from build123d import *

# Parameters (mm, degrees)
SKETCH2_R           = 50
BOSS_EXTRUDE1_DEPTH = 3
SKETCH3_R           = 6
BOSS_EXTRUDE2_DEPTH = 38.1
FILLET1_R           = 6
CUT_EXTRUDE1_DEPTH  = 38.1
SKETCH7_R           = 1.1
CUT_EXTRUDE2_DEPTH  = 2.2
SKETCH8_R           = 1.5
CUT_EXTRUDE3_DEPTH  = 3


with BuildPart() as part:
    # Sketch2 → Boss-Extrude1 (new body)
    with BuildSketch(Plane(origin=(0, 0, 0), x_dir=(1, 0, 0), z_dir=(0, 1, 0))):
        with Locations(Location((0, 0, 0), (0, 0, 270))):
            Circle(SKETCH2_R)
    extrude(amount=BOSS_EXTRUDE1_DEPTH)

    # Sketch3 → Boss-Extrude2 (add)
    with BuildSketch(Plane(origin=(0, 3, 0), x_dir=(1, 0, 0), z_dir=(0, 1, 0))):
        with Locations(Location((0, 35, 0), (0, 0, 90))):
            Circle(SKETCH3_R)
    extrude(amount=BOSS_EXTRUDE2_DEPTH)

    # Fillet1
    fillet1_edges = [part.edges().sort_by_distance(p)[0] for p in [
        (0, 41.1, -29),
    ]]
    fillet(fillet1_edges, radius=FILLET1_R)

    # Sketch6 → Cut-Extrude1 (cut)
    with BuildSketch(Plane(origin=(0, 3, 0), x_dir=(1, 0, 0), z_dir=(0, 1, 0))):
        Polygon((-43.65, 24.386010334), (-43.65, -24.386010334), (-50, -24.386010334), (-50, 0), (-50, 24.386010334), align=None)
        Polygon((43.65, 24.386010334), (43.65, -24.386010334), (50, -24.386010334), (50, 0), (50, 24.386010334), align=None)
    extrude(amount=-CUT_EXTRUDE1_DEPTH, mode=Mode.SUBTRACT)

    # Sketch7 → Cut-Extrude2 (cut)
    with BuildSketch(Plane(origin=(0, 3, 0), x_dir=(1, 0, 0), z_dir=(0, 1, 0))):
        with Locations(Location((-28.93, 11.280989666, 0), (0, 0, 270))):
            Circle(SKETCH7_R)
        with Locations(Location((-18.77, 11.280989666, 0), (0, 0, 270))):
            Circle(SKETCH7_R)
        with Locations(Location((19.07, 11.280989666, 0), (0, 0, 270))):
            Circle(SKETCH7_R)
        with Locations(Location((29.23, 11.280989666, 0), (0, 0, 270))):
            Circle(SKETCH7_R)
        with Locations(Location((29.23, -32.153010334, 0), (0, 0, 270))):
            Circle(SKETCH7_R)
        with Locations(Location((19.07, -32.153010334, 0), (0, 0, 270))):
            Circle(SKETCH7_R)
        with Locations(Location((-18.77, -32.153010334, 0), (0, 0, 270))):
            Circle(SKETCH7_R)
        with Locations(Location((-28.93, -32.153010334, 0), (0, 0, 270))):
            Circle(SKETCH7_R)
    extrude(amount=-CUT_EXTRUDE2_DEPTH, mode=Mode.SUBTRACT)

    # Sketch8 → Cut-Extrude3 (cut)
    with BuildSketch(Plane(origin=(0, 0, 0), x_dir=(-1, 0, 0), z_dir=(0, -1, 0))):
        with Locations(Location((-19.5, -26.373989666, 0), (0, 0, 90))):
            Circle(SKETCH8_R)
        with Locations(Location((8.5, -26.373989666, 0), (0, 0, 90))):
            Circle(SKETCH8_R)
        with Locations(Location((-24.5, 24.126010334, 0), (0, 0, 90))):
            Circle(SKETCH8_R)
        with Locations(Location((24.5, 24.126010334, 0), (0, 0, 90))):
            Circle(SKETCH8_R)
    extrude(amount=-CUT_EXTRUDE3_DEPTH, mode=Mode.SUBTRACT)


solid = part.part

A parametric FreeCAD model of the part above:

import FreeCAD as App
import Part
import Sketcher


def edges_at(feature, points):
    """Names of the edges that pass closest to the given points."""
    edges = feature.Shape.Edges
    near = lambda p: min(range(len(edges)), key=lambda i: edges[i].distToShape(Part.Vertex(*p))[0])
    return sorted({f"Edge{near(p) + 1}" for p in points})


def add_polygon(sketch, points):
    """Adds a closed chain of lines whose ends are joined by coincident constraints."""
    first, n = sketch.GeometryCount, len(points)
    for a, b in zip(points, points[1:] + points[:1]):
        sketch.addGeometry(Part.LineSegment(App.Vector(*a, 0), App.Vector(*b, 0)), False)
    for i in range(n):
        sketch.addConstraint(Sketcher.Constraint("Coincident", first + i, 2, first + (i + 1) % n, 1))

doc = App.newDocument("Part")
params = doc.addObject("Spreadsheet::Sheet", "Params")
for row, (alias, value) in enumerate([
    ("sketch1_diameter", "100 mm"),
    ("pad1_length", "3 mm"),
    ("sketch2_diameter", "12 mm"),
    ("pad2_length", "38.1 mm"),
    ("fillet_radius", "6 mm"),
    ("sketch3_width", "6.35 mm"),
    ("pocket1_length", "38.1 mm"),
    ("sketch4_diameter", "2.2 mm"),
    ("pocket2_length", "2.2 mm"),
    ("sketch5_diameter", "3 mm"),
    ("pocket3_length", "3 mm"),
], start=1):
    params.set(f"A{row}", alias)
    params.set(f"B{row}", "=" + value)
    params.setAlias(f"B{row}", alias)

body = doc.addObject("PartDesign::Body", "Body")

# Sketch on XZ plane
sketch1 = body.newObject("Sketcher::SketchObject", "Sketch")
sketch1.AttachmentSupport = (doc.getObject("XZ_Plane"), [""])
sketch1.MapMode = "FlatFace"
sketch1.addGeometry(Part.Circle(App.Vector(0, 0, 0), App.Vector(0, 0, 1), 50), False)
sketch1.addConstraint([
    Sketcher.Constraint("Coincident", 0, 3, -1, 1),
    Sketcher.Constraint("Diameter", 0, 100.0),
])
sketch1.setExpression("Constraints[1]", "Params.sketch1_diameter")
pad1 = body.newObject("PartDesign::Pad", "Pad")
pad1.Profile = sketch1
pad1.setExpression("Length", "Params.pad1_length")
pad1.Reversed = True

# Sketch on XZ plane
sketch2 = body.newObject("Sketcher::SketchObject", "Sketch001")
sketch2.AttachmentSupport = (doc.getObject("XZ_Plane"), [""])
sketch2.MapMode = "FlatFace"
sketch2.AttachmentOffset = App.Placement(App.Vector(0, 0, -3), App.Rotation())
sketch2.addGeometry(Part.Circle(App.Vector(0, -35, 0), App.Vector(0, 0, 1), 6), False)
sketch2.addConstraint([
    Sketcher.Constraint("PointOnObject", 0, 3, -2),
    Sketcher.Constraint("Diameter", 0, 12.0),
    Sketcher.Constraint("DistanceY", 0, 3, -1, 1, 35.0),
])
sketch2.setExpression("Constraints[1]", "Params.sketch2_diameter")
pad2 = body.newObject("PartDesign::Pad", "Pad001")
pad2.Profile = sketch2
pad2.setExpression("Length", "Params.pad2_length")
pad2.Reversed = True
doc.recompute()

fillet = body.newObject("PartDesign::Fillet", "Fillet")
fillet.Base = (pad2, edges_at(pad2, [(0, 41.1, -29)]))
fillet.setExpression("Radius", "Params.fillet_radius")

# Sketch on XZ plane
sketch3 = body.newObject("Sketcher::SketchObject", "Sketch002")
sketch3.AttachmentSupport = (doc.getObject("XZ_Plane"), [""])
sketch3.MapMode = "FlatFace"
sketch3.AttachmentOffset = App.Placement(App.Vector(0, 0, -3), App.Rotation())
add_polygon(sketch3, [(-44, 24), (-44, -24), (-50, -24), (-50, 24)])  # lines 0-3
add_polygon(sketch3, [(44, -24), (44, 24), (50, 24), (50, -24)])  # lines 4-7
sketch3.addConstraint([
    Sketcher.Constraint("Vertical", 0),
    Sketcher.Constraint("Horizontal", 1),
    Sketcher.Constraint("Vertical", 2),
    Sketcher.Constraint("Horizontal", 3),
    Sketcher.Constraint("Vertical", 4),
    Sketcher.Constraint("Horizontal", 5),
    Sketcher.Constraint("Vertical", 6),
    Sketcher.Constraint("Horizontal", 7),
    Sketcher.Constraint("Symmetric", 0, 2, 4, 2, -1, 1),
    Sketcher.Constraint("Symmetric", 2, 2, 6, 2, -1, 1),
    Sketcher.Constraint("Horizontal", 3, 2, 4, 2),
    Sketcher.Constraint("DistanceX", 1, 2, -1, 1, 50.0),
    Sketcher.Constraint("DistanceX", 1, 2, 1, 1, 6.35),
    Sketcher.Constraint("DistanceY", 0, 2, 0, 1, 48.772021),
])
sketch3.setExpression("Constraints[20]", "Params.sketch3_width")
pocket1 = body.newObject("PartDesign::Pocket", "Pocket")
pocket1.Profile = sketch3
pocket1.setExpression("Length", "Params.pocket1_length")
pocket1.Reversed = True

# Sketch on XZ plane
sketch4 = body.newObject("Sketcher::SketchObject", "Sketch003")
sketch4.AttachmentSupport = (doc.getObject("XZ_Plane"), [""])
sketch4.MapMode = "FlatFace"
sketch4.AttachmentOffset = App.Placement(App.Vector(0, 0, -3), App.Rotation())
sketch4.addGeometry([
    Part.Circle(App.Vector(-28.9, -11.3, 0), App.Vector(0, 0, 1), 1.1),  # 0
    Part.Circle(App.Vector(-18.8, -11.3, 0), App.Vector(0, 0, 1), 1.1),  # 1
    Part.Circle(App.Vector(19.1, -11.3, 0), App.Vector(0, 0, 1), 1.1),  # 2
    Part.Circle(App.Vector(29.2, -11.3, 0), App.Vector(0, 0, 1), 1.1),  # 3
    Part.Circle(App.Vector(29.2, 32.2, 0), App.Vector(0, 0, 1), 1.1),  # 4
    Part.Circle(App.Vector(19.1, 32.2, 0), App.Vector(0, 0, 1), 1.1),  # 5
    Part.Circle(App.Vector(-18.8, 32.2, 0), App.Vector(0, 0, 1), 1.1),  # 6
    Part.Circle(App.Vector(-28.9, 32.2, 0), App.Vector(0, 0, 1), 1.1),  # 7
], False)
sketch4.addConstraint([
    Sketcher.Constraint("Equal", 0, 1),
    Sketcher.Constraint("Equal", 1, 2),
    Sketcher.Constraint("Equal", 2, 3),
    Sketcher.Constraint("Equal", 3, 4),
    Sketcher.Constraint("Equal", 4, 5),
    Sketcher.Constraint("Equal", 5, 6),
    Sketcher.Constraint("Equal", 6, 7),
    Sketcher.Constraint("Horizontal", 0, 3, 1, 3),
    Sketcher.Constraint("Horizontal", 1, 3, 2, 3),
    Sketcher.Constraint("Horizontal", 2, 3, 3, 3),
    Sketcher.Constraint("Horizontal", 4, 3, 5, 3),
    Sketcher.Constraint("Horizontal", 5, 3, 6, 3),
    Sketcher.Constraint("Horizontal", 6, 3, 7, 3),
    Sketcher.Constraint("Vertical", 3, 3, 4, 3),
    Sketcher.Constraint("Vertical", 2, 3, 5, 3),
    Sketcher.Constraint("Vertical", 1, 3, 6, 3),
    Sketcher.Constraint("Vertical", 0, 3, 7, 3),
    Sketcher.Constraint("Diameter", 0, 2.2),
    Sketcher.Constraint("DistanceX", 0, 3, 2, 3, 48.0),
    Sketcher.Constraint("DistanceX", 1, 3, 3, 3, 48.0),
    Sketcher.Constraint("DistanceX", 0, 3, -1, 1, 28.93),
    Sketcher.Constraint("DistanceX", 1, 3, -1, 1, 18.77),
    Sketcher.Constraint("DistanceY", 3, 3, 4, 3, 43.434),
    Sketcher.Constraint("DistanceY", 0, 3, -1, 1, 11.28099),
])
sketch4.setExpression("Constraints[17]", "Params.sketch4_diameter")
pocket2 = body.newObject("PartDesign::Pocket", "Pocket001")
pocket2.Profile = sketch4
pocket2.setExpression("Length", "Params.pocket2_length")
pocket2.Reversed = True

# Sketch on XZ plane
sketch5 = body.newObject("Sketcher::SketchObject", "Sketch004")
sketch5.AttachmentSupport = (doc.getObject("XZ_Plane"), [""])
sketch5.MapMode = "FlatFace"
sketch5.addGeometry([
    Part.Circle(App.Vector(19.5, 26.4, 0), App.Vector(0, 0, 1), 1.5),
    Part.Circle(App.Vector(-8.5, 26.4, 0), App.Vector(0, 0, 1), 1.5),
    Part.Circle(App.Vector(24.5, -24.1, 0), App.Vector(0, 0, 1), 1.5),
    Part.Circle(App.Vector(-24.5, -24.1, 0), App.Vector(0, 0, 1), 1.5),
], False)
sketch5.addConstraint([
    Sketcher.Constraint("Equal", 0, 1),
    Sketcher.Constraint("Equal", 1, 2),
    Sketcher.Constraint("Equal", 2, 3),
    Sketcher.Constraint("Symmetric", 2, 3, 3, 3, -2),
    Sketcher.Constraint("Horizontal", 0, 3, 1, 3),
    Sketcher.Constraint("Diameter", 0, 3.0),
    Sketcher.Constraint("DistanceX", 1, 3, 0, 3, 28.0),
    Sketcher.Constraint("DistanceX", 0, 3, 2, 3, 5.0),
    Sketcher.Constraint("DistanceX", 3, 3, 2, 3, 49.0),
    Sketcher.Constraint("DistanceY", 2, 3, 0, 3, 50.5),
    Sketcher.Constraint("DistanceY", -1, 1, 0, 3, 26.37399),
])
sketch5.setExpression("Constraints[5]", "Params.sketch5_diameter")
pocket3 = body.newObject("PartDesign::Pocket", "Pocket002")
pocket3.Profile = sketch5
pocket3.setExpression("Length", "Params.pocket3_length")

doc.recompute()
